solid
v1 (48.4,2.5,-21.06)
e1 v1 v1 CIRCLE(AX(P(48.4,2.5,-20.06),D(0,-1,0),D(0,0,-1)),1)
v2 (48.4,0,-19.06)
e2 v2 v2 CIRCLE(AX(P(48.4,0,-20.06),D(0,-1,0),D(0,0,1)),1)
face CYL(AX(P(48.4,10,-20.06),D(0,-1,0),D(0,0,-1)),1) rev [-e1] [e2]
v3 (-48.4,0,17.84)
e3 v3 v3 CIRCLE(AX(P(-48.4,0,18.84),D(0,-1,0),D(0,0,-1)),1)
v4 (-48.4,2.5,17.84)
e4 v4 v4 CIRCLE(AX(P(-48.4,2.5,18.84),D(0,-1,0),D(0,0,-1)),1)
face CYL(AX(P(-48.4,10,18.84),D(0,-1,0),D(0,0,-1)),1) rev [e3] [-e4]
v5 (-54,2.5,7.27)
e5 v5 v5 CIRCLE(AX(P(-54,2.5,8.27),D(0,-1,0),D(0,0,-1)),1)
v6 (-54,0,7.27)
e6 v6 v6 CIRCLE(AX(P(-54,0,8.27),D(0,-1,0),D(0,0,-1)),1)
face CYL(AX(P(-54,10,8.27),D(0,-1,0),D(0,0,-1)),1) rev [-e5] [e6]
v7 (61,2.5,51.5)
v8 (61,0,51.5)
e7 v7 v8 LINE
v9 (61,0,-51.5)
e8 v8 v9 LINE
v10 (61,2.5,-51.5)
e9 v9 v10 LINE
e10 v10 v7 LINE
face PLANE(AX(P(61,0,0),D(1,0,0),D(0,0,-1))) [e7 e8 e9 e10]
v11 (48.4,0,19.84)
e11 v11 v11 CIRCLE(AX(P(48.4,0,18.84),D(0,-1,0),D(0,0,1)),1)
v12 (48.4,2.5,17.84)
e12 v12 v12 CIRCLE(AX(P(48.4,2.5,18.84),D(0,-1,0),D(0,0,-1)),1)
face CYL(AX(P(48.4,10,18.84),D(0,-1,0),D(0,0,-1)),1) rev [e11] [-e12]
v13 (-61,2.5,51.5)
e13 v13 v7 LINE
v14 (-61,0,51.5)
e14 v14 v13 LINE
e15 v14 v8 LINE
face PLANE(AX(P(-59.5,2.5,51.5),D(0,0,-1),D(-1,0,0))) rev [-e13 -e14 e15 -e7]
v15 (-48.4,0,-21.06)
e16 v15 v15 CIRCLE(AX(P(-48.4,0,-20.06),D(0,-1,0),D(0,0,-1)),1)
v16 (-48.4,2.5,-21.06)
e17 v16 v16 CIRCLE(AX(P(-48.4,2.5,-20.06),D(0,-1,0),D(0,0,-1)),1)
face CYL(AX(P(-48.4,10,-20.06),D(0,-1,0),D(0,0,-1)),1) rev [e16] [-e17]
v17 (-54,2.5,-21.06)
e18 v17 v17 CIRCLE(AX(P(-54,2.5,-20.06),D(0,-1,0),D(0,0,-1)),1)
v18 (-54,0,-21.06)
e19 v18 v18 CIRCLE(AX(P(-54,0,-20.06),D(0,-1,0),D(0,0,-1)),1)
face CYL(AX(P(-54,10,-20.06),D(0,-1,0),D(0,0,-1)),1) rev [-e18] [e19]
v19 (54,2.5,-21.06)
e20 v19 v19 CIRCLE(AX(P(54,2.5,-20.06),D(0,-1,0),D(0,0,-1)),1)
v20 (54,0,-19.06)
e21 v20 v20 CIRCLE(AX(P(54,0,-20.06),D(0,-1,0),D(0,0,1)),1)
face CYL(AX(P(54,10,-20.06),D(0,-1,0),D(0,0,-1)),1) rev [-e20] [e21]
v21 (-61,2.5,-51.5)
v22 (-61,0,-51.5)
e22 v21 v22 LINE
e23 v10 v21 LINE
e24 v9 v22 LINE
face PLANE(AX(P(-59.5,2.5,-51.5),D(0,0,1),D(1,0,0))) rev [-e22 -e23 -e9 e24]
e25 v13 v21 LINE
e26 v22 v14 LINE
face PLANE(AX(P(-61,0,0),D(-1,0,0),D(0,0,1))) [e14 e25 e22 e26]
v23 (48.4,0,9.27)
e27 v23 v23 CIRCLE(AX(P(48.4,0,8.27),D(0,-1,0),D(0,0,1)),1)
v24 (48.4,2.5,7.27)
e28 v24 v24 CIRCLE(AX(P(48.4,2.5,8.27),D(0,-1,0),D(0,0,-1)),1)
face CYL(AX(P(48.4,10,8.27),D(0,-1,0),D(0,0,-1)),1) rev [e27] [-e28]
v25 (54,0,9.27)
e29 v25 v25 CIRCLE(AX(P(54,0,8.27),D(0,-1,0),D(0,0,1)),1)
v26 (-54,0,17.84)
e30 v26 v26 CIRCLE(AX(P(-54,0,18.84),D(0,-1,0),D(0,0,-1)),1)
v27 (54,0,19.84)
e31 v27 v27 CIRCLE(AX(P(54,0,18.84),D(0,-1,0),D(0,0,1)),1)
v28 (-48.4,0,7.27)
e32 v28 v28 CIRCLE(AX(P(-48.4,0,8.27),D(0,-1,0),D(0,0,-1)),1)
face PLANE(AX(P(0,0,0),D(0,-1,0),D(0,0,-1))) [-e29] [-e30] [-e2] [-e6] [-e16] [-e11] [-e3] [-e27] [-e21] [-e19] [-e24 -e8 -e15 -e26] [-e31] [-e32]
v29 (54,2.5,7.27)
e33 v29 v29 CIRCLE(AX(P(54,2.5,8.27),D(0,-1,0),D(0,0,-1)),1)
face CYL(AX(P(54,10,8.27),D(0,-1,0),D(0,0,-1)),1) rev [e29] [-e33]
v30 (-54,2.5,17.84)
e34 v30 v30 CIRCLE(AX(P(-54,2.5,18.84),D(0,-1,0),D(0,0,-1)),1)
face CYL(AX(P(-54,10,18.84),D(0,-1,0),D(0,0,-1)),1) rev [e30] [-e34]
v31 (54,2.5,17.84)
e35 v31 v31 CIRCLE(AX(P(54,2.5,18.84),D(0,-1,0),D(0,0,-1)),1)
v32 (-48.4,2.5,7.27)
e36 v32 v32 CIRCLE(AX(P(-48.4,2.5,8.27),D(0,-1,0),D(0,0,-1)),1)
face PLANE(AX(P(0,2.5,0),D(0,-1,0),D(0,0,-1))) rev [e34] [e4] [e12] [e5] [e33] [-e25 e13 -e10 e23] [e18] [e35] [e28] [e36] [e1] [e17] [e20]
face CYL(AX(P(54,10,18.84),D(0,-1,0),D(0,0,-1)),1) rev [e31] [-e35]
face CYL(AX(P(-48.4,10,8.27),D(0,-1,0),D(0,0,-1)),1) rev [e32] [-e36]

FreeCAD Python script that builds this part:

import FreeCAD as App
import Part
import Sketcher
from FreeCAD import Vector

doc = App.newDocument("Part")
body = doc.addObject("PartDesign::Body", "Body")

# Sketch on XZ plane
sketch1 = body.newObject("Sketcher::SketchObject", "Sketch")
sketch1.AttachmentSupport = (doc.getObject("XZ_Plane"), [""])
sketch1.MapMode = "FlatFace"
sketch1.addGeometry([
    Part.LineSegment(Vector(-60, -52, 0), Vector(-60, 52, 0)),
    Part.LineSegment(Vector(-60, 52, 0), Vector(60, 52, 0)),
    Part.LineSegment(Vector(60, 52, 0), Vector(60, -52, 0)),
    Part.LineSegment(Vector(60, -52, 0), Vector(-60, -52, 0)),
], False)
sketch1.addConstraint([
    Sketcher.Constraint("Coincident", 0, 2, 1, 1),
    Sketcher.Constraint("Coincident", 1, 2, 2, 1),
    Sketcher.Constraint("Coincident", 2, 2, 3, 1),
    Sketcher.Constraint("Coincident", 3, 2, 0, 1),
    Sketcher.Constraint("Vertical", 0),
    Sketcher.Constraint("Horizontal", 1),
    Sketcher.Constraint("Vertical", 2),
    Sketcher.Constraint("Horizontal", 3),
    Sketcher.Constraint("Symmetric", 0, 2, 2, 2, -1, 1),
    Sketcher.Constraint("DistanceX", 1, 1, 1, 2, 119.0),
    Sketcher.Constraint("DistanceY", 0, 1, 0, 2, 103.0),
])
pad1 = body.newObject("PartDesign::Pad", "Pad")
pad1.Profile = sketch1
pad1.Length = 2.5
pad1.Reversed = True

# Sketch on XZ plane
sketch2 = body.newObject("Sketcher::SketchObject", "Sketch001")
sketch2.AttachmentSupport = (doc.getObject("XZ_Plane"), [""])
sketch2.MapMode = "FlatFace"
sketch2.addGeometry([
    Part.Circle(Vector(-54, -20.1, 0), Vector(0, 0, 1), 1),  # 0
    Part.Circle(Vector(-54, 8.3, 0), Vector(0, 0, 1), 1),  # 1
    Part.Circle(Vector(-54, 18.8, 0), Vector(0, 0, 1), 1),  # 2
    Part.Circle(Vector(54, -20.1, 0), Vector(0, 0, 1), 1),  # 3
    Part.Circle(Vector(54, 8.3, 0), Vector(0, 0, 1), 1),  # 4
    Part.Circle(Vector(54, 18.8, 0), Vector(0, 0, 1), 1),  # 5
    Part.Circle(Vector(-48.4, 18.8, 0), Vector(0, 0, 1), 1),  # 6
    Part.Circle(Vector(-48.4, -20.1, 0), Vector(0, 0, 1), 1),  # 7
    Part.Circle(Vector(-48.4, 8.3, 0), Vector(0, 0, 1), 1),  # 8
    Part.Circle(Vector(48.4, -20.1, 0), Vector(0, 0, 1), 1),  # 9
    Part.Circle(Vector(48.4, 8.3, 0), Vector(0, 0, 1), 1),  # 10
    Part.Circle(Vector(48.4, 18.8, 0), Vector(0, 0, 1), 1),  # 11
], False)
sketch2.addConstraint([
    Sketcher.Constraint("Equal", 0, 1),
    Sketcher.Constraint("Equal", 1, 2),
    Sketcher.Constraint("Equal", 2, 3),
    Sketcher.Constraint("Equal", 3, 4),
    Sketcher.Constraint("Equal", 4, 5),
    Sketcher.Constraint("Equal", 5, 6),
    Sketcher.Constraint("Equal", 6, 7),
    Sketcher.Constraint("Equal", 7, 8),
    Sketcher.Constraint("Equal", 8, 9),
    Sketcher.Constraint("Equal", 9, 10),
    Sketcher.Constraint("Equal", 10, 11),
    Sketcher.Constraint("Symmetric", 0, 3, 3, 3, -2),
    Sketcher.Constraint("Symmetric", 1, 3, 4, 3, -2),
    Sketcher.Constraint("Symmetric", 2, 3, 5, 3, -2),
    Sketcher.Constraint("Symmetric", 7, 3, 9, 3, -2),
    Sketcher.Constraint("Symmetric", 8, 3, 10, 3, -2),
    Sketcher.Constraint("Symmetric", 6, 3, 11, 3, -2),
    Sketcher.Constraint("Horizontal", 5, 3, 6, 3),
    Sketcher.Constraint("Horizontal", 3, 3, 7, 3),
    Sketcher.Constraint("Horizontal", 4, 3, 8, 3),
    Sketcher.Constraint("Vertical", 0, 3, 1, 3),
    Sketcher.Constraint("Vertical", 1, 3, 2, 3),
    Sketcher.Constraint("Vertical", 6, 3, 7, 3),
    Sketcher.Constraint("Vertical", 7, 3, 8, 3),
    Sketcher.Constraint("Diameter", 0, 2.0),
    Sketcher.Constraint("DistanceX", 0, 3, -1, 1, 54.0),
    Sketcher.Constraint("DistanceX", 6, 3, -1, 1, 48.4),
    Sketcher.Constraint("DistanceY", 0, 3, 2, 3, 38.9),
    Sketcher.Constraint("DistanceY", 0, 3, -1, 1, 20.06),
    Sketcher.Constraint("DistanceY", -1, 1, 1, 3, 8.27),
])
pocket1 = body.newObject("PartDesign::Pocket", "Pocket")
pocket1.Profile = sketch2
pocket1.Length = 10

# Sketch on YZ plane
sketch3 = body.newObject("Sketcher::SketchObject", "Sketch002")
sketch3.AttachmentSupport = (doc.getObject("YZ_Plane"), [""])
sketch3.MapMode = "FlatFace"
sketch3.AttachmentOffset = App.Placement(Vector(0, 0, -59.5), App.Rotation())
sketch3.addGeometry([
    Part.LineSegment(Vector(2.5, -51.5, 0), Vector(0, -51.5, 0)),
    Part.LineSegment(Vector(0, -51.5, 0), Vector(0, 51.5, 0)),
    Part.LineSegment(Vector(0, 51.5, 0), Vector(2.5, 51.5, 0)),
    Part.LineSegment(Vector(2.5, 51.5, 0), Vector(2.5, -51.5, 0)),
], False)
sketch3.addConstraint([
    Sketcher.Constraint("Coincident", 0, 2, 1, 1),
    Sketcher.Constraint("Coincident", 1, 2, 2, 1),
    Sketcher.Constraint("Coincident", 2, 2, 3, 1),
    Sketcher.Constraint("Coincident", 3, 2, 0, 1),
    Sketcher.Constraint("Horizontal", 0),
    Sketcher.Constraint("Vertical", 1),
    Sketcher.Constraint("Horizontal", 2),
    Sketcher.Constraint("Vertical", 3),
    Sketcher.Constraint("Symmetric", 0, 2, 1, 2, -1, 1),
    Sketcher.Constraint("DistanceY", 1, 1, 1, 2, 103.0),
    Sketcher.Constraint("DistanceX", 0, 2, 0, 1, 2.5),
])
pad2 = body.newObject("PartDesign::Pad", "Pad001")
pad2.Profile = sketch3
pad2.Length = 1.5
pad2.Reversed = True

# Sketch on YZ plane
sketch4 = body.newObject("Sketcher::SketchObject", "Sketch003")
sketch4.AttachmentSupport = (doc.getObject("YZ_Plane"), [""])
sketch4.MapMode = "FlatFace"
sketch4.AttachmentOffset = App.Placement(Vector(0, 0, 59.5), App.Rotation())
sketch4.addGeometry([
    Part.LineSegment(Vector(2.5, 51.5, 0), Vector(0, 51.5, 0)),
    Part.LineSegment(Vector(0, 51.5, 0), Vector(0, -51.5, 0)),
    Part.LineSegment(Vector(0, -51.5, 0), Vector(2.5, -51.5, 0)),
    Part.LineSegment(Vector(2.5, -51.5, 0), Vector(2.5, 51.5, 0)),
], False)
sketch4.addConstraint([
    Sketcher.Constraint("Coincident", 0, 2, 1, 1),
    Sketcher.Constraint("Coincident", 1, 2, 2, 1),
    Sketcher.Constraint("Coincident", 2, 2, 3, 1),
    Sketcher.Constraint("Coincident", 3, 2, 0, 1),
    Sketcher.Constraint("Horizontal", 0),
    Sketcher.Constraint("Vertical", 1),
    Sketcher.Constraint("Horizontal", 2),
    Sketcher.Constraint("Vertical", 3),
    Sketcher.Constraint("Symmetric", 0, 2, 1, 2, -1, 1),
    Sketcher.Constraint("DistanceY", 1, 2, 1, 1, 103.0),
    Sketcher.Constraint("DistanceX", 0, 2, 0, 1, 2.5),
])
pad3 = body.newObject("PartDesign::Pad", "Pad002")
pad3.Profile = sketch4
pad3.Length = 1.5

doc.recompute()
